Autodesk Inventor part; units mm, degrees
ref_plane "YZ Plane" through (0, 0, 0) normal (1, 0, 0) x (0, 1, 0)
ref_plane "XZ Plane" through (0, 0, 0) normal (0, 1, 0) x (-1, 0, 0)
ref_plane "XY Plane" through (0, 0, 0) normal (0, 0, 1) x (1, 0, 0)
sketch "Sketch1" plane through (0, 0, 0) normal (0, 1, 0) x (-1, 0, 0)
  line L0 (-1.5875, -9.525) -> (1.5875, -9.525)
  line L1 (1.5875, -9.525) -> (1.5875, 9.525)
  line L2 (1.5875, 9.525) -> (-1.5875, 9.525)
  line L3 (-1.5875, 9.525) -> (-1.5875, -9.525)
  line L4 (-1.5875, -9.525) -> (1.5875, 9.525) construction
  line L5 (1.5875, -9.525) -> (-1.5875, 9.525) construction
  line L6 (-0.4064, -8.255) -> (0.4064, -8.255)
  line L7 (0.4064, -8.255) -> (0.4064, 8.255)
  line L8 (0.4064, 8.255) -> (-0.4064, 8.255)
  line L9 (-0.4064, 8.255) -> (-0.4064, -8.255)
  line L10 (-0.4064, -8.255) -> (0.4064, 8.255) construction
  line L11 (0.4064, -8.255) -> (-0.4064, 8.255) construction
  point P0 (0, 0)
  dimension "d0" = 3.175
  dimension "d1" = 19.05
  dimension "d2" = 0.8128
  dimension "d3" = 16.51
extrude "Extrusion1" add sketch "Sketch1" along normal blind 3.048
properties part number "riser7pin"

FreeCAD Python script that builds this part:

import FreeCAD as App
import Part
import Sketcher

V = App.Vector
Q = App.Units.Quantity

doc = App.newDocument("Part")
body = doc.addObject("PartDesign::Body", "Body")

sketch1 = doc.addObject("Sketcher::SketchObject", "Sketch")
body.addObject(sketch1)
sketch1.AttachmentSupport = (doc.XZ_Plane, [""])
sketch1.MapMode = "FlatFace"
sketch1.addGeometry([
    Part.LineSegment(V(1.6, 9.5, 0), V(1.6, -9.5, 0)),
    Part.LineSegment(V(1.6, -9.5, 0), V(-1.6, -9.5, 0)),
    Part.LineSegment(V(-1.6, -9.5, 0), V(-1.6, 9.5, 0)),
    Part.LineSegment(V(-1.6, 9.5, 0), V(1.6, 9.5, 0)),
    Part.LineSegment(V(-0.4, -8.3, 0), V(0.4, -8.3, 0)),
    Part.LineSegment(V(0.4, -8.3, 0), V(0.4, 8.3, 0)),
    Part.LineSegment(V(0.4, 8.3, 0), V(-0.4, 8.3, 0)),
    Part.LineSegment(V(-0.4, 8.3, 0), V(-0.4, -8.3, 0)),
], False)
sketch1.addConstraint([
    Sketcher.Constraint("Coincident", 0, 2, 1, 1),
    Sketcher.Constraint("Coincident", 1, 2, 2, 1),
    Sketcher.Constraint("Coincident", 2, 2, 3, 1),
    Sketcher.Constraint("Coincident", 3, 2, 0, 1),
    Sketcher.Constraint("Coincident", 4, 2, 5, 1),
    Sketcher.Constraint("Coincident", 5, 2, 6, 1),
    Sketcher.Constraint("Coincident", 6, 2, 7, 1),
    Sketcher.Constraint("Coincident", 7, 2, 4, 1),
    Sketcher.Constraint("Vertical", 0),
    Sketcher.Constraint("Horizontal", 1),
    Sketcher.Constraint("Vertical", 2),
    Sketcher.Constraint("Horizontal", 3),
    Sketcher.Constraint("Horizontal", 4),
    Sketcher.Constraint("Vertical", 5),
    Sketcher.Constraint("Horizontal", 6),
    Sketcher.Constraint("Vertical", 7),
    Sketcher.Constraint("Symmetric", 0, 2, 2, 2, -1, 1),
    Sketcher.Constraint("Symmetric", 4, 2, 6, 2, -1, 1),
    Sketcher.Constraint("DistanceY", 0, 2, 0, 1, Q("0.75 in")),
    Sketcher.Constraint("DistanceY", 5, 1, 5, 2, Q("0.65 in")),
    Sketcher.Constraint("DistanceX", 1, 2, 1, 1, Q("0.125 in")),
    Sketcher.Constraint("DistanceX", 4, 1, 4, 2, Q("0.032 in")),
])
pad1 = doc.addObject("PartDesign::Pad", "Pad")
body.addObject(pad1)
pad1.Profile = sketch1
pad1.Length = Q("0.12 in")
pad1.Reversed = True

doc.recompute()
